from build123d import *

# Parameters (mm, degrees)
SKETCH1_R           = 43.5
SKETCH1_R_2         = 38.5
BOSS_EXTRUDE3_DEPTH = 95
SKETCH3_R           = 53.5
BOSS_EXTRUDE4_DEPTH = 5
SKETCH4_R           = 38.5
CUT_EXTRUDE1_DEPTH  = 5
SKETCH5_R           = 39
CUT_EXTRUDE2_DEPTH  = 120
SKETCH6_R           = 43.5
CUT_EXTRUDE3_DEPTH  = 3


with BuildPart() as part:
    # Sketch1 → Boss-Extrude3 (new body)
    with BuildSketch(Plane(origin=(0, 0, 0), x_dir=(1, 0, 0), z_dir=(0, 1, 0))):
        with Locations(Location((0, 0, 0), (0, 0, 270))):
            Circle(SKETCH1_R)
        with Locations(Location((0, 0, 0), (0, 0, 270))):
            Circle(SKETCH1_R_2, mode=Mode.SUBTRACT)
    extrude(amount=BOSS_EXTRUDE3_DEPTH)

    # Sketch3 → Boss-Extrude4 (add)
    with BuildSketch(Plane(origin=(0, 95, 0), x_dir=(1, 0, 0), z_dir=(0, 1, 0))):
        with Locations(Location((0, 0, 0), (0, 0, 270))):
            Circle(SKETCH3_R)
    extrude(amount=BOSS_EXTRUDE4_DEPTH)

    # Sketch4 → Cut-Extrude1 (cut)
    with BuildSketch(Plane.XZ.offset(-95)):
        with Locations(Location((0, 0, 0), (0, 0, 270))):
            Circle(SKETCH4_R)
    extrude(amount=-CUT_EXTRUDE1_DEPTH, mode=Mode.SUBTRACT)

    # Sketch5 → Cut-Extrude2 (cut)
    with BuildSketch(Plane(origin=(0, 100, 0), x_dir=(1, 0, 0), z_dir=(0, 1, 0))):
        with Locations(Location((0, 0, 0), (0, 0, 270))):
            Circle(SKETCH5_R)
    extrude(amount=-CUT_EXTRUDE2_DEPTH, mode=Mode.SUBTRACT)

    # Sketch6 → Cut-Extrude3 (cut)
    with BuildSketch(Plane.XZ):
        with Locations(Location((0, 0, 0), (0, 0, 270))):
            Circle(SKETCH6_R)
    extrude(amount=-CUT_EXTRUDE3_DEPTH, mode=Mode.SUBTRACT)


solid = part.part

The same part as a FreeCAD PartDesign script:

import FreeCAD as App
import Part
import Sketcher

V = App.Vector
Q = App.Units.Quantity

doc = App.newDocument("Part")
body = doc.addObject("PartDesign::Body", "Body")

# Sketch on XZ plane
sketch1 = body.newObject("Sketcher::SketchObject", "Sketch")
sketch1.AttachmentSupport = (doc.getObject("XZ_Plane"), [""])
sketch1.MapMode = "FlatFace"
sketch1.addGeometry(Part.Circle(V(0, 0, 0), V(0, 0, 1), 44), False)
sketch1.addGeometry(Part.Circle(V(0, 0, 0), V(0, 0, 1), 38), False)
sketch1.addConstraint(Sketcher.Constraint("Coincident", 0, 3, -1, 1))
sketch1.addConstraint(Sketcher.Constraint("Coincident", 1, 3, -1, 1))
sketch1.addConstraint(Sketcher.Constraint("Diameter", 0, Q("87 mm")))
sketch1.addConstraint(Sketcher.Constraint("Diameter", 1, Q("77 mm")))
pad1 = body.newObject("PartDesign::Pad", "Pad")
pad1.Profile = sketch1
pad1.Length = 95
pad1.Reversed = True

# Sketch on XZ plane
sketch2 = body.newObject("Sketcher::SketchObject", "Sketch001")
sketch2.AttachmentSupport = (doc.getObject("XZ_Plane"), [""])
sketch2.MapMode = "FlatFace"
sketch2.AttachmentOffset = App.Placement(V(0, 0, -95), App.Rotation())
sketch2.addGeometry(Part.Circle(V(0, 0, 0), V(0, 0, 1), 54), False)
sketch2.addConstraint(Sketcher.Constraint("Coincident", 0, 3, -1, 1))
sketch2.addConstraint(Sketcher.Constraint("Diameter", 0, Q("107 mm")))
pad2 = body.newObject("PartDesign::Pad", "Pad001")
pad2.Profile = sketch2
pad2.Length = 5
pad2.Reversed = True

# Sketch on XZ plane
sketch3 = body.newObject("Sketcher::SketchObject", "Sketch002")
sketch3.AttachmentSupport = (doc.getObject("XZ_Plane"), [""])
sketch3.MapMode = "FlatFace"
sketch3.AttachmentOffset = App.Placement(V(0, 0, -95), App.Rotation())
sketch3.addGeometry(Part.Circle(V(0, 0, 0), V(0, 0, 1), 38), False)
sketch3.addConstraint(Sketcher.Constraint("Coincident", 0, 3, -1, 1))
sketch3.addConstraint(Sketcher.Constraint("Diameter", 0, Q("77 mm")))
pocket1 = body.newObject("PartDesign::Pocket", "Pocket")
pocket1.Profile = sketch3
pocket1.Length = 5

# Sketch on XZ plane
sketch4 = body.newObject("Sketcher::SketchObject", "Sketch003")
sketch4.AttachmentSupport = (doc.getObject("XZ_Plane"), [""])
sketch4.MapMode = "FlatFace"
sketch4.AttachmentOffset = App.Placement(V(0, 0, -100), App.Rotation())
sketch4.addGeometry(Part.Circle(V(0, 0, 0), V(0, 0, 1), 39), False)
sketch4.addConstraint(Sketcher.Constraint("Coincident", 0, 3, -1, 1))
sketch4.addConstraint(Sketcher.Constraint("Diameter", 0, Q("78 mm")))
pocket2 = body.newObject("PartDesign::Pocket", "Pocket001")
pocket2.Profile = sketch4
pocket2.Length = 120
pocket2.Reversed = True

# Sketch on XZ plane
sketch5 = body.newObject("Sketcher::SketchObject", "Sketch004")
sketch5.AttachmentSupport = (doc.getObject("XZ_Plane"), [""])
sketch5.MapMode = "FlatFace"
sketch5.addGeometry(Part.Circle(V(0, 0, 0), V(0, 0, 1), 44), False)
sketch5.addConstraint(Sketcher.Constraint("Coincident", 0, 3, -1, 1))
sketch5.addConstraint(Sketcher.Constraint("Diameter", 0, Q("87 mm")))
pocket3 = body.newObject("PartDesign::Pocket", "Pocket002")
pocket3.Profile = sketch5
pocket3.Length = 3

doc.recompute()
